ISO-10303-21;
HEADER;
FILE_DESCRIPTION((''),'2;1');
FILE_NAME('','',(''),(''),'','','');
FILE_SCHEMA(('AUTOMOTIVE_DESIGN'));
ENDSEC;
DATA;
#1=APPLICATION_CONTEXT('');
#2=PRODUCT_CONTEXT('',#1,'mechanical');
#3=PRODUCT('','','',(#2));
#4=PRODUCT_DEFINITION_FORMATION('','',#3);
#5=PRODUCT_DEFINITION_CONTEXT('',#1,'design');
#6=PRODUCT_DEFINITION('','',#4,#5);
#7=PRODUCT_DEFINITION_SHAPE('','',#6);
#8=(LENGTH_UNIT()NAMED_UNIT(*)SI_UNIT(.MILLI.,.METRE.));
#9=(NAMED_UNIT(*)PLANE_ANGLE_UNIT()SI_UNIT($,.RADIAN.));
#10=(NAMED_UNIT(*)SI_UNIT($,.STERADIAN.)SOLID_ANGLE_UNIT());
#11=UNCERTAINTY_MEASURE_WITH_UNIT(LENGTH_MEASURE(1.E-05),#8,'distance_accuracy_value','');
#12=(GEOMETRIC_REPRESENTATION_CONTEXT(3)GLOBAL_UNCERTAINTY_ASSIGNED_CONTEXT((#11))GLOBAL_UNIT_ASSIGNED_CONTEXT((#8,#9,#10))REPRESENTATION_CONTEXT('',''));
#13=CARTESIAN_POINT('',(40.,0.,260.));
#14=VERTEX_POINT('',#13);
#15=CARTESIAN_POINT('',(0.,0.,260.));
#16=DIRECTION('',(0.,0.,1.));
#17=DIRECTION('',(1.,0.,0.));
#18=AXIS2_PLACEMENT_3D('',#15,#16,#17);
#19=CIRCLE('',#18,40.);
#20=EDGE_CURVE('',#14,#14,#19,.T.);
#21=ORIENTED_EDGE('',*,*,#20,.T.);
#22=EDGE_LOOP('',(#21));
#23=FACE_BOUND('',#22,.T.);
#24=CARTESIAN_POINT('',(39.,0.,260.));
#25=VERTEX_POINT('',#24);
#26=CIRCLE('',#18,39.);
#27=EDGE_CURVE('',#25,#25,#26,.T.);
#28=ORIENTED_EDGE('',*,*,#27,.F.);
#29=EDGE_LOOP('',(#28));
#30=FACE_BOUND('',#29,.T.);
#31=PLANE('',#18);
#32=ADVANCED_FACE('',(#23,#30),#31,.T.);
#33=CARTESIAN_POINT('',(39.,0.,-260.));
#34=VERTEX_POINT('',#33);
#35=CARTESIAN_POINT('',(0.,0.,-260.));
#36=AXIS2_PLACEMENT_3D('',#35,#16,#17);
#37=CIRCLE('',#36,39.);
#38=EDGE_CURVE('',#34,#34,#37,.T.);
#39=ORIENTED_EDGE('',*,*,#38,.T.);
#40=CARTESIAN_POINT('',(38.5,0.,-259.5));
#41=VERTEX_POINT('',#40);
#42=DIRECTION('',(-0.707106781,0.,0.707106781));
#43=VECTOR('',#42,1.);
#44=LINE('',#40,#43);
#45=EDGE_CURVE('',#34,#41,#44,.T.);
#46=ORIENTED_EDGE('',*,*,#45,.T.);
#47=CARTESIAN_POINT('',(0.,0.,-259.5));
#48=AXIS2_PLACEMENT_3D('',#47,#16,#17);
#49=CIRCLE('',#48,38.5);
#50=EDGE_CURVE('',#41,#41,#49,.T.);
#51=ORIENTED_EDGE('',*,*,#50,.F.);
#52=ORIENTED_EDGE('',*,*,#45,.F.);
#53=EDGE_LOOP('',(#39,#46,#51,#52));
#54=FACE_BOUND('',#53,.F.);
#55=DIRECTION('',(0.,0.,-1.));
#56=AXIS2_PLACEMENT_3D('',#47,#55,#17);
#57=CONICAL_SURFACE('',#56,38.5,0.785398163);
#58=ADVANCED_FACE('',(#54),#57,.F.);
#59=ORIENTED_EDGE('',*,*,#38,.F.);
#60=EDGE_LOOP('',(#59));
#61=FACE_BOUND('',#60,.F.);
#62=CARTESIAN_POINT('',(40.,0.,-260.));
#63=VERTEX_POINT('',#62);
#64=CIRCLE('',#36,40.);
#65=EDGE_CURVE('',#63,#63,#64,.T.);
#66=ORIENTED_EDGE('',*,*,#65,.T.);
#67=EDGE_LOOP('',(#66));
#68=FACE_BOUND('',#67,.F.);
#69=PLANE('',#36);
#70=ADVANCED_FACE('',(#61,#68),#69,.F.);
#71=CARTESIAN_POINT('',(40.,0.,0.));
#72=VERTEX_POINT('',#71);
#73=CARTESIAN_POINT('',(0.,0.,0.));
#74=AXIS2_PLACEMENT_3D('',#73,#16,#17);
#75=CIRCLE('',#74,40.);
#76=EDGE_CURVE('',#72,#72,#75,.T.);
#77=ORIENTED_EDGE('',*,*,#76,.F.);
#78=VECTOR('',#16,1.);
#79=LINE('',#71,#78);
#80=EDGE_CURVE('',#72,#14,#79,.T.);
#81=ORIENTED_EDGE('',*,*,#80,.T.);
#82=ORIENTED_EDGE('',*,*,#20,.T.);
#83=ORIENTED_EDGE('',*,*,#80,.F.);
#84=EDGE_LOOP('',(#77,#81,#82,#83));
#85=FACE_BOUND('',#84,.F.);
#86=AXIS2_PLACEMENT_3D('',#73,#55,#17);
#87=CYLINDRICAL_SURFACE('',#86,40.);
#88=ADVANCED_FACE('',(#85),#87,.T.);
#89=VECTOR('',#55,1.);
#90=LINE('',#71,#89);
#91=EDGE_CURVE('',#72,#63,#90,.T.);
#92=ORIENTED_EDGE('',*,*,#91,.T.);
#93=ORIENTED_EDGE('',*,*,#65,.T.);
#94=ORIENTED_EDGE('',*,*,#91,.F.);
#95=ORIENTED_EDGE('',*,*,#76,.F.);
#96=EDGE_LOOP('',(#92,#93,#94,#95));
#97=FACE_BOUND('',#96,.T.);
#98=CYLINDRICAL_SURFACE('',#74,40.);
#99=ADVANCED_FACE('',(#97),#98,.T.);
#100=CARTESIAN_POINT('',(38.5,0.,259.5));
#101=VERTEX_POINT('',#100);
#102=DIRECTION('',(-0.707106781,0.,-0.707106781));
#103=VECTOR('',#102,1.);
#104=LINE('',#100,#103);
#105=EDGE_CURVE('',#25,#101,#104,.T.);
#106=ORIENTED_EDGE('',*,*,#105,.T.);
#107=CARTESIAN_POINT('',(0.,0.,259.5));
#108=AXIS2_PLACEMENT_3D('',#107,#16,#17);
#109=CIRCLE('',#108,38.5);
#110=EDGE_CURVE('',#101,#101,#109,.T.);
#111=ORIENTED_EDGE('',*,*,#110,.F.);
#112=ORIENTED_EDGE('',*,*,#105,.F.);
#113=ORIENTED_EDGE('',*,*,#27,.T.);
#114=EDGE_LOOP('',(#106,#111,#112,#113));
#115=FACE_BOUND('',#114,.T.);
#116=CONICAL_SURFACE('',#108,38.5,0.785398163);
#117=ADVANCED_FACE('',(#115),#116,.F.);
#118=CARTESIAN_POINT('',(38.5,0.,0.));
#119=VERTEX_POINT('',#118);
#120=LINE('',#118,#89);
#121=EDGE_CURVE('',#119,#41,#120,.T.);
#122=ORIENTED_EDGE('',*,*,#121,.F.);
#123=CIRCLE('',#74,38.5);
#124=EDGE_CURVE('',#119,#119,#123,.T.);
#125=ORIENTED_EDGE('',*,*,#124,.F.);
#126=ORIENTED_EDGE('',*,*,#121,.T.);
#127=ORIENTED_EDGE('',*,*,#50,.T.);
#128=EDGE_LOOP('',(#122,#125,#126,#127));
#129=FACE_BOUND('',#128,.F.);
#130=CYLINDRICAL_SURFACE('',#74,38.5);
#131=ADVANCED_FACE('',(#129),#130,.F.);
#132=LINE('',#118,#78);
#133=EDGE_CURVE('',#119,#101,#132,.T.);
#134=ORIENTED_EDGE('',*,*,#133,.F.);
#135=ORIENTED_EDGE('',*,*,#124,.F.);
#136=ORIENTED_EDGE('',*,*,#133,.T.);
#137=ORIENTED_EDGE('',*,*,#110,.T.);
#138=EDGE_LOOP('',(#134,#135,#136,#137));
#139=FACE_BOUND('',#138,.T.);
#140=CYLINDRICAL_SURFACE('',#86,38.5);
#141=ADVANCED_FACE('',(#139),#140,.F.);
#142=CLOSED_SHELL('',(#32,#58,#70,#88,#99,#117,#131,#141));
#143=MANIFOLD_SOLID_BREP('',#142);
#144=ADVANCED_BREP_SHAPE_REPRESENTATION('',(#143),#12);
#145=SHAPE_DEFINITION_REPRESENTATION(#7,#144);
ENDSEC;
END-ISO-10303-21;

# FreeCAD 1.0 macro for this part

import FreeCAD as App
import Part
import Sketcher

V = App.Vector
Q = App.Units.Quantity


def edges_at(feature, points):
    """Names of the edges that pass closest to the given points."""
    edges = feature.Shape.Edges
    near = lambda p: min(range(len(edges)), key=lambda i: edges[i].distToShape(Part.Vertex(*p))[0])
    return sorted({f"Edge{near(p) + 1}" for p in points})

doc = App.newDocument("Part")
params = doc.addObject("Spreadsheet::Sheet", "Params")
for row, (alias, value) in enumerate([
    ("sketch1_diameter", "80 mm"),
    ("sketch1_diameter2", "77 mm"),
    ("pad1_length", "520 mm"),
    ("chamfer_size", "0.5 mm"),
], start=1):
    params.set(f"A{row}", alias)
    params.set(f"B{row}", "=" + value)
    params.setAlias(f"B{row}", alias)

body = doc.addObject("PartDesign::Body", "Body")

# Sketch on XY plane
sketch1 = doc.addObject("Sketcher::SketchObject", "Sketch")
body.addObject(sketch1)
sketch1.AttachmentSupport = (doc.XY_Plane, [""])
sketch1.MapMode = "FlatFace"
sketch1.addGeometry([
    Part.Circle(V(0, 0, 0), V(0, 0, 1), 40),
    Part.Circle(V(0, 0, 0), V(0, 0, 1), 38),
], False)
sketch1.addConstraint([
    Sketcher.Constraint("Coincident", 0, 3, -1, 1),
    Sketcher.Constraint("Coincident", 1, 3, -1, 1),
    Sketcher.Constraint("Diameter", 0, Q("80 mm")),
    Sketcher.Constraint("Diameter", 1, Q("77 mm")),
])
sketch1.setExpression("Constraints[2]", "Params.sketch1_diameter")
sketch1.setExpression("Constraints[3]", "Params.sketch1_diameter2")
pad1 = doc.addObject("PartDesign::Pad", "Pad")
body.addObject(pad1)
pad1.Profile = sketch1
pad1.setExpression("Length", "Params.pad1_length")
pad1.Midplane = True
doc.recompute()

chamfer = doc.addObject("PartDesign::Chamfer", "Chamfer")
body.addObject(chamfer)
chamfer.Base = (pad1, edges_at(pad1, [(-38.5, 0, 260), (-38.5, 0, -260)]))
chamfer.setExpression("Size", "Params.chamfer_size")

doc.recompute()
